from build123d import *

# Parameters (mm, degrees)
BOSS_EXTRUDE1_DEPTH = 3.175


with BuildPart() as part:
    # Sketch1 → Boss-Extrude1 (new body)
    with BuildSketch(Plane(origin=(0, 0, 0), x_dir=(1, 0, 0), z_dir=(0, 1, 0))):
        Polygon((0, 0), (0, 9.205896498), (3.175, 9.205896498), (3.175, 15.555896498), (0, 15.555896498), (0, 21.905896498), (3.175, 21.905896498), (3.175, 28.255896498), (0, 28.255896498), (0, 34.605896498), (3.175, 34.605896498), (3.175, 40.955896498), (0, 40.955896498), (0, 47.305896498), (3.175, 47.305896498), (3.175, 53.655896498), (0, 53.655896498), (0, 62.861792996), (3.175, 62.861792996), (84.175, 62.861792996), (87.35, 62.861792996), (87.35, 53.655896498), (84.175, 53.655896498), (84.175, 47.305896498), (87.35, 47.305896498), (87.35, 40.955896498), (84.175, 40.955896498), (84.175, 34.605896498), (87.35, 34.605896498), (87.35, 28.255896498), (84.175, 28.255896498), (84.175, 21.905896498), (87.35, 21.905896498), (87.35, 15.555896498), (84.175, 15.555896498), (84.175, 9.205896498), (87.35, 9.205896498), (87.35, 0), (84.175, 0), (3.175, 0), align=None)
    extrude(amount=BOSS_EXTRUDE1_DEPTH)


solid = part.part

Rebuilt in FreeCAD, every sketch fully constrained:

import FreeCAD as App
import Part
import Sketcher
from FreeCAD import Vector
Q = App.Units.Quantity


def add_polygon(sketch, points):
    """Adds a closed chain of lines whose ends are joined by coincident constraints."""
    first, n = sketch.GeometryCount, len(points)
    for a, b in zip(points, points[1:] + points[:1]):
        sketch.addGeometry(Part.LineSegment(App.Vector(*a, 0), App.Vector(*b, 0)), False)
    for i in range(n):
        sketch.addConstraint(Sketcher.Constraint("Coincident", first + i, 2, first + (i + 1) % n, 1))

doc = App.newDocument("Part")
body = doc.addObject("PartDesign::Body", "Body")

sketch1 = body.newObject("Sketcher::SketchObject", "Sketch")
sketch1.AttachmentSupport = (doc.getObject("XZ_Plane"), [""])
sketch1.MapMode = "FlatFace"
add_polygon(sketch1, [(0, -9.2), (0, 0), (87.3, 0), (87.3, -9.2), (84.2, -9.2), (84.2, -15.6), (87.3, -15.6), (87.3, -21.9), (84.2, -21.9), (84.2, -28.3), (87.3, -28.3), (87.3, -34.6), (84.2, -34.6), (84.2, -41), (87.3, -41), (87.3, -47.3), (84.2, -47.3), (84.2, -53.7), (87.3, -53.7), (87.3, -62.9), (0, -62.9), (0, -53.7), (3.2, -53.7), (3.2, -47.3), (0, -47.3), (0, -41), (3.2, -41), (3.2, -34.6), (0, -34.6), (0, -28.3), (3.2, -28.3), (3.2, -21.9), (0, -21.9), (0, -15.6), (3.2, -15.6), (3.2, -9.2)])
sketch1.addConstraint(Sketcher.Constraint("Vertical", 0))
sketch1.addConstraint(Sketcher.Constraint("Horizontal", 1))
sketch1.addConstraint(Sketcher.Constraint("Vertical", 2))
sketch1.addConstraint(Sketcher.Constraint("Horizontal", 3))
sketch1.addConstraint(Sketcher.Constraint("Vertical", 4))
sketch1.addConstraint(Sketcher.Constraint("Horizontal", 5))
sketch1.addConstraint(Sketcher.Constraint("Vertical", 6))
sketch1.addConstraint(Sketcher.Constraint("Horizontal", 7))
sketch1.addConstraint(Sketcher.Constraint("Vertical", 8))
sketch1.addConstraint(Sketcher.Constraint("Horizontal", 9))
sketch1.addConstraint(Sketcher.Constraint("Vertical", 10))
sketch1.addConstraint(Sketcher.Constraint("Horizontal", 11))
sketch1.addConstraint(Sketcher.Constraint("Vertical", 12))
sketch1.addConstraint(Sketcher.Constraint("Horizontal", 13))
sketch1.addConstraint(Sketcher.Constraint("Vertical", 14))
sketch1.addConstraint(Sketcher.Constraint("Horizontal", 15))
sketch1.addConstraint(Sketcher.Constraint("Vertical", 16))
sketch1.addConstraint(Sketcher.Constraint("Horizontal", 17))
sketch1.addConstraint(Sketcher.Constraint("Vertical", 18))
sketch1.addConstraint(Sketcher.Constraint("Horizontal", 19))
sketch1.addConstraint(Sketcher.Constraint("Vertical", 20))
sketch1.addConstraint(Sketcher.Constraint("Horizontal", 21))
sketch1.addConstraint(Sketcher.Constraint("Vertical", 22))
sketch1.addConstraint(Sketcher.Constraint("Horizontal", 23))
sketch1.addConstraint(Sketcher.Constraint("Vertical", 24))
sketch1.addConstraint(Sketcher.Constraint("Horizontal", 25))
sketch1.addConstraint(Sketcher.Constraint("Vertical", 26))
sketch1.addConstraint(Sketcher.Constraint("Horizontal", 27))
sketch1.addConstraint(Sketcher.Constraint("Vertical", 28))
sketch1.addConstraint(Sketcher.Constraint("Horizontal", 29))
sketch1.addConstraint(Sketcher.Constraint("Vertical", 30))
sketch1.addConstraint(Sketcher.Constraint("Horizontal", 31))
sketch1.addConstraint(Sketcher.Constraint("Vertical", 32))
sketch1.addConstraint(Sketcher.Constraint("Horizontal", 33))
sketch1.addConstraint(Sketcher.Constraint("Vertical", 34))
sketch1.addConstraint(Sketcher.Constraint("Horizontal", 35))
sketch1.addConstraint(Sketcher.Constraint("Coincident", 0, 2, -1, 1))
sketch1.addConstraint(Sketcher.Constraint("PointOnObject", 19, 2, -2))
sketch1.addConstraint(Sketcher.Constraint("PointOnObject", 23, 2, -2))
sketch1.addConstraint(Sketcher.Constraint("PointOnObject", 27, 2, -2))
sketch1.addConstraint(Sketcher.Constraint("PointOnObject", 31, 2, -2))
sketch1.addConstraint(Sketcher.Constraint("Horizontal", 17, 2, 20, 2))
sketch1.addConstraint(Sketcher.Constraint("Horizontal", 15, 2, 22, 2))
sketch1.addConstraint(Sketcher.Constraint("Horizontal", 13, 2, 24, 2))
sketch1.addConstraint(Sketcher.Constraint("Horizontal", 11, 2, 26, 2))
sketch1.addConstraint(Sketcher.Constraint("Horizontal", 9, 2, 28, 2))
sketch1.addConstraint(Sketcher.Constraint("Horizontal", 7, 2, 30, 2))
sketch1.addConstraint(Sketcher.Constraint("Horizontal", 5, 2, 32, 2))
sketch1.addConstraint(Sketcher.Constraint("Horizontal", 3, 2, 34, 2))
sketch1.addConstraint(Sketcher.Constraint("Vertical", 2, 2, 5, 2))
sketch1.addConstraint(Sketcher.Constraint("Vertical", 4, 2, 7, 2))
sketch1.addConstraint(Sketcher.Constraint("Vertical", 6, 2, 9, 2))
sketch1.addConstraint(Sketcher.Constraint("Vertical", 8, 2, 11, 2))
sketch1.addConstraint(Sketcher.Constraint("Vertical", 10, 2, 13, 2))
sketch1.addConstraint(Sketcher.Constraint("Vertical", 12, 2, 15, 2))
sketch1.addConstraint(Sketcher.Constraint("Vertical", 14, 2, 17, 2))
sketch1.addConstraint(Sketcher.Constraint("Vertical", 22, 2, 25, 2))
sketch1.addConstraint(Sketcher.Constraint("Vertical", 26, 2, 29, 2))
sketch1.addConstraint(Sketcher.Constraint("Vertical", 30, 2, 33, 2))
sketch1.addConstraint(Sketcher.Constraint("Equal", 17, 21))
sketch1.addConstraint(Sketcher.Constraint("Equal", 4, 6))
sketch1.addConstraint(Sketcher.Constraint("Equal", 6, 8))
sketch1.addConstraint(Sketcher.Constraint("Equal", 8, 10))
sketch1.addConstraint(Sketcher.Constraint("Equal", 10, 12))
sketch1.addConstraint(Sketcher.Constraint("Equal", 12, 14))
sketch1.addConstraint(Sketcher.Constraint("Equal", 14, 16))
sketch1.addConstraint(Sketcher.Constraint("Equal", 2, 18))
sketch1.addConstraint(Sketcher.Constraint("DistanceY", 4, 2, 4, 1, Q("0.25 in")))
sketch1.addConstraint(Sketcher.Constraint("DistanceX", 3, 2, 3, 1, Q("0.125 in")))
sketch1.addConstraint(Sketcher.Constraint("DistanceX", 1, 1, 1, 2, Q("87.35 mm")))
sketch1.addConstraint(Sketcher.Constraint("DistanceY", 0, 1, 0, 2, Q("9.205896 mm")))
pad1 = body.newObject("PartDesign::Pad", "Pad")
pad1.Profile = sketch1
pad1.Length = Q("0.125 in")
pad1.Reversed = True

doc.recompute()
